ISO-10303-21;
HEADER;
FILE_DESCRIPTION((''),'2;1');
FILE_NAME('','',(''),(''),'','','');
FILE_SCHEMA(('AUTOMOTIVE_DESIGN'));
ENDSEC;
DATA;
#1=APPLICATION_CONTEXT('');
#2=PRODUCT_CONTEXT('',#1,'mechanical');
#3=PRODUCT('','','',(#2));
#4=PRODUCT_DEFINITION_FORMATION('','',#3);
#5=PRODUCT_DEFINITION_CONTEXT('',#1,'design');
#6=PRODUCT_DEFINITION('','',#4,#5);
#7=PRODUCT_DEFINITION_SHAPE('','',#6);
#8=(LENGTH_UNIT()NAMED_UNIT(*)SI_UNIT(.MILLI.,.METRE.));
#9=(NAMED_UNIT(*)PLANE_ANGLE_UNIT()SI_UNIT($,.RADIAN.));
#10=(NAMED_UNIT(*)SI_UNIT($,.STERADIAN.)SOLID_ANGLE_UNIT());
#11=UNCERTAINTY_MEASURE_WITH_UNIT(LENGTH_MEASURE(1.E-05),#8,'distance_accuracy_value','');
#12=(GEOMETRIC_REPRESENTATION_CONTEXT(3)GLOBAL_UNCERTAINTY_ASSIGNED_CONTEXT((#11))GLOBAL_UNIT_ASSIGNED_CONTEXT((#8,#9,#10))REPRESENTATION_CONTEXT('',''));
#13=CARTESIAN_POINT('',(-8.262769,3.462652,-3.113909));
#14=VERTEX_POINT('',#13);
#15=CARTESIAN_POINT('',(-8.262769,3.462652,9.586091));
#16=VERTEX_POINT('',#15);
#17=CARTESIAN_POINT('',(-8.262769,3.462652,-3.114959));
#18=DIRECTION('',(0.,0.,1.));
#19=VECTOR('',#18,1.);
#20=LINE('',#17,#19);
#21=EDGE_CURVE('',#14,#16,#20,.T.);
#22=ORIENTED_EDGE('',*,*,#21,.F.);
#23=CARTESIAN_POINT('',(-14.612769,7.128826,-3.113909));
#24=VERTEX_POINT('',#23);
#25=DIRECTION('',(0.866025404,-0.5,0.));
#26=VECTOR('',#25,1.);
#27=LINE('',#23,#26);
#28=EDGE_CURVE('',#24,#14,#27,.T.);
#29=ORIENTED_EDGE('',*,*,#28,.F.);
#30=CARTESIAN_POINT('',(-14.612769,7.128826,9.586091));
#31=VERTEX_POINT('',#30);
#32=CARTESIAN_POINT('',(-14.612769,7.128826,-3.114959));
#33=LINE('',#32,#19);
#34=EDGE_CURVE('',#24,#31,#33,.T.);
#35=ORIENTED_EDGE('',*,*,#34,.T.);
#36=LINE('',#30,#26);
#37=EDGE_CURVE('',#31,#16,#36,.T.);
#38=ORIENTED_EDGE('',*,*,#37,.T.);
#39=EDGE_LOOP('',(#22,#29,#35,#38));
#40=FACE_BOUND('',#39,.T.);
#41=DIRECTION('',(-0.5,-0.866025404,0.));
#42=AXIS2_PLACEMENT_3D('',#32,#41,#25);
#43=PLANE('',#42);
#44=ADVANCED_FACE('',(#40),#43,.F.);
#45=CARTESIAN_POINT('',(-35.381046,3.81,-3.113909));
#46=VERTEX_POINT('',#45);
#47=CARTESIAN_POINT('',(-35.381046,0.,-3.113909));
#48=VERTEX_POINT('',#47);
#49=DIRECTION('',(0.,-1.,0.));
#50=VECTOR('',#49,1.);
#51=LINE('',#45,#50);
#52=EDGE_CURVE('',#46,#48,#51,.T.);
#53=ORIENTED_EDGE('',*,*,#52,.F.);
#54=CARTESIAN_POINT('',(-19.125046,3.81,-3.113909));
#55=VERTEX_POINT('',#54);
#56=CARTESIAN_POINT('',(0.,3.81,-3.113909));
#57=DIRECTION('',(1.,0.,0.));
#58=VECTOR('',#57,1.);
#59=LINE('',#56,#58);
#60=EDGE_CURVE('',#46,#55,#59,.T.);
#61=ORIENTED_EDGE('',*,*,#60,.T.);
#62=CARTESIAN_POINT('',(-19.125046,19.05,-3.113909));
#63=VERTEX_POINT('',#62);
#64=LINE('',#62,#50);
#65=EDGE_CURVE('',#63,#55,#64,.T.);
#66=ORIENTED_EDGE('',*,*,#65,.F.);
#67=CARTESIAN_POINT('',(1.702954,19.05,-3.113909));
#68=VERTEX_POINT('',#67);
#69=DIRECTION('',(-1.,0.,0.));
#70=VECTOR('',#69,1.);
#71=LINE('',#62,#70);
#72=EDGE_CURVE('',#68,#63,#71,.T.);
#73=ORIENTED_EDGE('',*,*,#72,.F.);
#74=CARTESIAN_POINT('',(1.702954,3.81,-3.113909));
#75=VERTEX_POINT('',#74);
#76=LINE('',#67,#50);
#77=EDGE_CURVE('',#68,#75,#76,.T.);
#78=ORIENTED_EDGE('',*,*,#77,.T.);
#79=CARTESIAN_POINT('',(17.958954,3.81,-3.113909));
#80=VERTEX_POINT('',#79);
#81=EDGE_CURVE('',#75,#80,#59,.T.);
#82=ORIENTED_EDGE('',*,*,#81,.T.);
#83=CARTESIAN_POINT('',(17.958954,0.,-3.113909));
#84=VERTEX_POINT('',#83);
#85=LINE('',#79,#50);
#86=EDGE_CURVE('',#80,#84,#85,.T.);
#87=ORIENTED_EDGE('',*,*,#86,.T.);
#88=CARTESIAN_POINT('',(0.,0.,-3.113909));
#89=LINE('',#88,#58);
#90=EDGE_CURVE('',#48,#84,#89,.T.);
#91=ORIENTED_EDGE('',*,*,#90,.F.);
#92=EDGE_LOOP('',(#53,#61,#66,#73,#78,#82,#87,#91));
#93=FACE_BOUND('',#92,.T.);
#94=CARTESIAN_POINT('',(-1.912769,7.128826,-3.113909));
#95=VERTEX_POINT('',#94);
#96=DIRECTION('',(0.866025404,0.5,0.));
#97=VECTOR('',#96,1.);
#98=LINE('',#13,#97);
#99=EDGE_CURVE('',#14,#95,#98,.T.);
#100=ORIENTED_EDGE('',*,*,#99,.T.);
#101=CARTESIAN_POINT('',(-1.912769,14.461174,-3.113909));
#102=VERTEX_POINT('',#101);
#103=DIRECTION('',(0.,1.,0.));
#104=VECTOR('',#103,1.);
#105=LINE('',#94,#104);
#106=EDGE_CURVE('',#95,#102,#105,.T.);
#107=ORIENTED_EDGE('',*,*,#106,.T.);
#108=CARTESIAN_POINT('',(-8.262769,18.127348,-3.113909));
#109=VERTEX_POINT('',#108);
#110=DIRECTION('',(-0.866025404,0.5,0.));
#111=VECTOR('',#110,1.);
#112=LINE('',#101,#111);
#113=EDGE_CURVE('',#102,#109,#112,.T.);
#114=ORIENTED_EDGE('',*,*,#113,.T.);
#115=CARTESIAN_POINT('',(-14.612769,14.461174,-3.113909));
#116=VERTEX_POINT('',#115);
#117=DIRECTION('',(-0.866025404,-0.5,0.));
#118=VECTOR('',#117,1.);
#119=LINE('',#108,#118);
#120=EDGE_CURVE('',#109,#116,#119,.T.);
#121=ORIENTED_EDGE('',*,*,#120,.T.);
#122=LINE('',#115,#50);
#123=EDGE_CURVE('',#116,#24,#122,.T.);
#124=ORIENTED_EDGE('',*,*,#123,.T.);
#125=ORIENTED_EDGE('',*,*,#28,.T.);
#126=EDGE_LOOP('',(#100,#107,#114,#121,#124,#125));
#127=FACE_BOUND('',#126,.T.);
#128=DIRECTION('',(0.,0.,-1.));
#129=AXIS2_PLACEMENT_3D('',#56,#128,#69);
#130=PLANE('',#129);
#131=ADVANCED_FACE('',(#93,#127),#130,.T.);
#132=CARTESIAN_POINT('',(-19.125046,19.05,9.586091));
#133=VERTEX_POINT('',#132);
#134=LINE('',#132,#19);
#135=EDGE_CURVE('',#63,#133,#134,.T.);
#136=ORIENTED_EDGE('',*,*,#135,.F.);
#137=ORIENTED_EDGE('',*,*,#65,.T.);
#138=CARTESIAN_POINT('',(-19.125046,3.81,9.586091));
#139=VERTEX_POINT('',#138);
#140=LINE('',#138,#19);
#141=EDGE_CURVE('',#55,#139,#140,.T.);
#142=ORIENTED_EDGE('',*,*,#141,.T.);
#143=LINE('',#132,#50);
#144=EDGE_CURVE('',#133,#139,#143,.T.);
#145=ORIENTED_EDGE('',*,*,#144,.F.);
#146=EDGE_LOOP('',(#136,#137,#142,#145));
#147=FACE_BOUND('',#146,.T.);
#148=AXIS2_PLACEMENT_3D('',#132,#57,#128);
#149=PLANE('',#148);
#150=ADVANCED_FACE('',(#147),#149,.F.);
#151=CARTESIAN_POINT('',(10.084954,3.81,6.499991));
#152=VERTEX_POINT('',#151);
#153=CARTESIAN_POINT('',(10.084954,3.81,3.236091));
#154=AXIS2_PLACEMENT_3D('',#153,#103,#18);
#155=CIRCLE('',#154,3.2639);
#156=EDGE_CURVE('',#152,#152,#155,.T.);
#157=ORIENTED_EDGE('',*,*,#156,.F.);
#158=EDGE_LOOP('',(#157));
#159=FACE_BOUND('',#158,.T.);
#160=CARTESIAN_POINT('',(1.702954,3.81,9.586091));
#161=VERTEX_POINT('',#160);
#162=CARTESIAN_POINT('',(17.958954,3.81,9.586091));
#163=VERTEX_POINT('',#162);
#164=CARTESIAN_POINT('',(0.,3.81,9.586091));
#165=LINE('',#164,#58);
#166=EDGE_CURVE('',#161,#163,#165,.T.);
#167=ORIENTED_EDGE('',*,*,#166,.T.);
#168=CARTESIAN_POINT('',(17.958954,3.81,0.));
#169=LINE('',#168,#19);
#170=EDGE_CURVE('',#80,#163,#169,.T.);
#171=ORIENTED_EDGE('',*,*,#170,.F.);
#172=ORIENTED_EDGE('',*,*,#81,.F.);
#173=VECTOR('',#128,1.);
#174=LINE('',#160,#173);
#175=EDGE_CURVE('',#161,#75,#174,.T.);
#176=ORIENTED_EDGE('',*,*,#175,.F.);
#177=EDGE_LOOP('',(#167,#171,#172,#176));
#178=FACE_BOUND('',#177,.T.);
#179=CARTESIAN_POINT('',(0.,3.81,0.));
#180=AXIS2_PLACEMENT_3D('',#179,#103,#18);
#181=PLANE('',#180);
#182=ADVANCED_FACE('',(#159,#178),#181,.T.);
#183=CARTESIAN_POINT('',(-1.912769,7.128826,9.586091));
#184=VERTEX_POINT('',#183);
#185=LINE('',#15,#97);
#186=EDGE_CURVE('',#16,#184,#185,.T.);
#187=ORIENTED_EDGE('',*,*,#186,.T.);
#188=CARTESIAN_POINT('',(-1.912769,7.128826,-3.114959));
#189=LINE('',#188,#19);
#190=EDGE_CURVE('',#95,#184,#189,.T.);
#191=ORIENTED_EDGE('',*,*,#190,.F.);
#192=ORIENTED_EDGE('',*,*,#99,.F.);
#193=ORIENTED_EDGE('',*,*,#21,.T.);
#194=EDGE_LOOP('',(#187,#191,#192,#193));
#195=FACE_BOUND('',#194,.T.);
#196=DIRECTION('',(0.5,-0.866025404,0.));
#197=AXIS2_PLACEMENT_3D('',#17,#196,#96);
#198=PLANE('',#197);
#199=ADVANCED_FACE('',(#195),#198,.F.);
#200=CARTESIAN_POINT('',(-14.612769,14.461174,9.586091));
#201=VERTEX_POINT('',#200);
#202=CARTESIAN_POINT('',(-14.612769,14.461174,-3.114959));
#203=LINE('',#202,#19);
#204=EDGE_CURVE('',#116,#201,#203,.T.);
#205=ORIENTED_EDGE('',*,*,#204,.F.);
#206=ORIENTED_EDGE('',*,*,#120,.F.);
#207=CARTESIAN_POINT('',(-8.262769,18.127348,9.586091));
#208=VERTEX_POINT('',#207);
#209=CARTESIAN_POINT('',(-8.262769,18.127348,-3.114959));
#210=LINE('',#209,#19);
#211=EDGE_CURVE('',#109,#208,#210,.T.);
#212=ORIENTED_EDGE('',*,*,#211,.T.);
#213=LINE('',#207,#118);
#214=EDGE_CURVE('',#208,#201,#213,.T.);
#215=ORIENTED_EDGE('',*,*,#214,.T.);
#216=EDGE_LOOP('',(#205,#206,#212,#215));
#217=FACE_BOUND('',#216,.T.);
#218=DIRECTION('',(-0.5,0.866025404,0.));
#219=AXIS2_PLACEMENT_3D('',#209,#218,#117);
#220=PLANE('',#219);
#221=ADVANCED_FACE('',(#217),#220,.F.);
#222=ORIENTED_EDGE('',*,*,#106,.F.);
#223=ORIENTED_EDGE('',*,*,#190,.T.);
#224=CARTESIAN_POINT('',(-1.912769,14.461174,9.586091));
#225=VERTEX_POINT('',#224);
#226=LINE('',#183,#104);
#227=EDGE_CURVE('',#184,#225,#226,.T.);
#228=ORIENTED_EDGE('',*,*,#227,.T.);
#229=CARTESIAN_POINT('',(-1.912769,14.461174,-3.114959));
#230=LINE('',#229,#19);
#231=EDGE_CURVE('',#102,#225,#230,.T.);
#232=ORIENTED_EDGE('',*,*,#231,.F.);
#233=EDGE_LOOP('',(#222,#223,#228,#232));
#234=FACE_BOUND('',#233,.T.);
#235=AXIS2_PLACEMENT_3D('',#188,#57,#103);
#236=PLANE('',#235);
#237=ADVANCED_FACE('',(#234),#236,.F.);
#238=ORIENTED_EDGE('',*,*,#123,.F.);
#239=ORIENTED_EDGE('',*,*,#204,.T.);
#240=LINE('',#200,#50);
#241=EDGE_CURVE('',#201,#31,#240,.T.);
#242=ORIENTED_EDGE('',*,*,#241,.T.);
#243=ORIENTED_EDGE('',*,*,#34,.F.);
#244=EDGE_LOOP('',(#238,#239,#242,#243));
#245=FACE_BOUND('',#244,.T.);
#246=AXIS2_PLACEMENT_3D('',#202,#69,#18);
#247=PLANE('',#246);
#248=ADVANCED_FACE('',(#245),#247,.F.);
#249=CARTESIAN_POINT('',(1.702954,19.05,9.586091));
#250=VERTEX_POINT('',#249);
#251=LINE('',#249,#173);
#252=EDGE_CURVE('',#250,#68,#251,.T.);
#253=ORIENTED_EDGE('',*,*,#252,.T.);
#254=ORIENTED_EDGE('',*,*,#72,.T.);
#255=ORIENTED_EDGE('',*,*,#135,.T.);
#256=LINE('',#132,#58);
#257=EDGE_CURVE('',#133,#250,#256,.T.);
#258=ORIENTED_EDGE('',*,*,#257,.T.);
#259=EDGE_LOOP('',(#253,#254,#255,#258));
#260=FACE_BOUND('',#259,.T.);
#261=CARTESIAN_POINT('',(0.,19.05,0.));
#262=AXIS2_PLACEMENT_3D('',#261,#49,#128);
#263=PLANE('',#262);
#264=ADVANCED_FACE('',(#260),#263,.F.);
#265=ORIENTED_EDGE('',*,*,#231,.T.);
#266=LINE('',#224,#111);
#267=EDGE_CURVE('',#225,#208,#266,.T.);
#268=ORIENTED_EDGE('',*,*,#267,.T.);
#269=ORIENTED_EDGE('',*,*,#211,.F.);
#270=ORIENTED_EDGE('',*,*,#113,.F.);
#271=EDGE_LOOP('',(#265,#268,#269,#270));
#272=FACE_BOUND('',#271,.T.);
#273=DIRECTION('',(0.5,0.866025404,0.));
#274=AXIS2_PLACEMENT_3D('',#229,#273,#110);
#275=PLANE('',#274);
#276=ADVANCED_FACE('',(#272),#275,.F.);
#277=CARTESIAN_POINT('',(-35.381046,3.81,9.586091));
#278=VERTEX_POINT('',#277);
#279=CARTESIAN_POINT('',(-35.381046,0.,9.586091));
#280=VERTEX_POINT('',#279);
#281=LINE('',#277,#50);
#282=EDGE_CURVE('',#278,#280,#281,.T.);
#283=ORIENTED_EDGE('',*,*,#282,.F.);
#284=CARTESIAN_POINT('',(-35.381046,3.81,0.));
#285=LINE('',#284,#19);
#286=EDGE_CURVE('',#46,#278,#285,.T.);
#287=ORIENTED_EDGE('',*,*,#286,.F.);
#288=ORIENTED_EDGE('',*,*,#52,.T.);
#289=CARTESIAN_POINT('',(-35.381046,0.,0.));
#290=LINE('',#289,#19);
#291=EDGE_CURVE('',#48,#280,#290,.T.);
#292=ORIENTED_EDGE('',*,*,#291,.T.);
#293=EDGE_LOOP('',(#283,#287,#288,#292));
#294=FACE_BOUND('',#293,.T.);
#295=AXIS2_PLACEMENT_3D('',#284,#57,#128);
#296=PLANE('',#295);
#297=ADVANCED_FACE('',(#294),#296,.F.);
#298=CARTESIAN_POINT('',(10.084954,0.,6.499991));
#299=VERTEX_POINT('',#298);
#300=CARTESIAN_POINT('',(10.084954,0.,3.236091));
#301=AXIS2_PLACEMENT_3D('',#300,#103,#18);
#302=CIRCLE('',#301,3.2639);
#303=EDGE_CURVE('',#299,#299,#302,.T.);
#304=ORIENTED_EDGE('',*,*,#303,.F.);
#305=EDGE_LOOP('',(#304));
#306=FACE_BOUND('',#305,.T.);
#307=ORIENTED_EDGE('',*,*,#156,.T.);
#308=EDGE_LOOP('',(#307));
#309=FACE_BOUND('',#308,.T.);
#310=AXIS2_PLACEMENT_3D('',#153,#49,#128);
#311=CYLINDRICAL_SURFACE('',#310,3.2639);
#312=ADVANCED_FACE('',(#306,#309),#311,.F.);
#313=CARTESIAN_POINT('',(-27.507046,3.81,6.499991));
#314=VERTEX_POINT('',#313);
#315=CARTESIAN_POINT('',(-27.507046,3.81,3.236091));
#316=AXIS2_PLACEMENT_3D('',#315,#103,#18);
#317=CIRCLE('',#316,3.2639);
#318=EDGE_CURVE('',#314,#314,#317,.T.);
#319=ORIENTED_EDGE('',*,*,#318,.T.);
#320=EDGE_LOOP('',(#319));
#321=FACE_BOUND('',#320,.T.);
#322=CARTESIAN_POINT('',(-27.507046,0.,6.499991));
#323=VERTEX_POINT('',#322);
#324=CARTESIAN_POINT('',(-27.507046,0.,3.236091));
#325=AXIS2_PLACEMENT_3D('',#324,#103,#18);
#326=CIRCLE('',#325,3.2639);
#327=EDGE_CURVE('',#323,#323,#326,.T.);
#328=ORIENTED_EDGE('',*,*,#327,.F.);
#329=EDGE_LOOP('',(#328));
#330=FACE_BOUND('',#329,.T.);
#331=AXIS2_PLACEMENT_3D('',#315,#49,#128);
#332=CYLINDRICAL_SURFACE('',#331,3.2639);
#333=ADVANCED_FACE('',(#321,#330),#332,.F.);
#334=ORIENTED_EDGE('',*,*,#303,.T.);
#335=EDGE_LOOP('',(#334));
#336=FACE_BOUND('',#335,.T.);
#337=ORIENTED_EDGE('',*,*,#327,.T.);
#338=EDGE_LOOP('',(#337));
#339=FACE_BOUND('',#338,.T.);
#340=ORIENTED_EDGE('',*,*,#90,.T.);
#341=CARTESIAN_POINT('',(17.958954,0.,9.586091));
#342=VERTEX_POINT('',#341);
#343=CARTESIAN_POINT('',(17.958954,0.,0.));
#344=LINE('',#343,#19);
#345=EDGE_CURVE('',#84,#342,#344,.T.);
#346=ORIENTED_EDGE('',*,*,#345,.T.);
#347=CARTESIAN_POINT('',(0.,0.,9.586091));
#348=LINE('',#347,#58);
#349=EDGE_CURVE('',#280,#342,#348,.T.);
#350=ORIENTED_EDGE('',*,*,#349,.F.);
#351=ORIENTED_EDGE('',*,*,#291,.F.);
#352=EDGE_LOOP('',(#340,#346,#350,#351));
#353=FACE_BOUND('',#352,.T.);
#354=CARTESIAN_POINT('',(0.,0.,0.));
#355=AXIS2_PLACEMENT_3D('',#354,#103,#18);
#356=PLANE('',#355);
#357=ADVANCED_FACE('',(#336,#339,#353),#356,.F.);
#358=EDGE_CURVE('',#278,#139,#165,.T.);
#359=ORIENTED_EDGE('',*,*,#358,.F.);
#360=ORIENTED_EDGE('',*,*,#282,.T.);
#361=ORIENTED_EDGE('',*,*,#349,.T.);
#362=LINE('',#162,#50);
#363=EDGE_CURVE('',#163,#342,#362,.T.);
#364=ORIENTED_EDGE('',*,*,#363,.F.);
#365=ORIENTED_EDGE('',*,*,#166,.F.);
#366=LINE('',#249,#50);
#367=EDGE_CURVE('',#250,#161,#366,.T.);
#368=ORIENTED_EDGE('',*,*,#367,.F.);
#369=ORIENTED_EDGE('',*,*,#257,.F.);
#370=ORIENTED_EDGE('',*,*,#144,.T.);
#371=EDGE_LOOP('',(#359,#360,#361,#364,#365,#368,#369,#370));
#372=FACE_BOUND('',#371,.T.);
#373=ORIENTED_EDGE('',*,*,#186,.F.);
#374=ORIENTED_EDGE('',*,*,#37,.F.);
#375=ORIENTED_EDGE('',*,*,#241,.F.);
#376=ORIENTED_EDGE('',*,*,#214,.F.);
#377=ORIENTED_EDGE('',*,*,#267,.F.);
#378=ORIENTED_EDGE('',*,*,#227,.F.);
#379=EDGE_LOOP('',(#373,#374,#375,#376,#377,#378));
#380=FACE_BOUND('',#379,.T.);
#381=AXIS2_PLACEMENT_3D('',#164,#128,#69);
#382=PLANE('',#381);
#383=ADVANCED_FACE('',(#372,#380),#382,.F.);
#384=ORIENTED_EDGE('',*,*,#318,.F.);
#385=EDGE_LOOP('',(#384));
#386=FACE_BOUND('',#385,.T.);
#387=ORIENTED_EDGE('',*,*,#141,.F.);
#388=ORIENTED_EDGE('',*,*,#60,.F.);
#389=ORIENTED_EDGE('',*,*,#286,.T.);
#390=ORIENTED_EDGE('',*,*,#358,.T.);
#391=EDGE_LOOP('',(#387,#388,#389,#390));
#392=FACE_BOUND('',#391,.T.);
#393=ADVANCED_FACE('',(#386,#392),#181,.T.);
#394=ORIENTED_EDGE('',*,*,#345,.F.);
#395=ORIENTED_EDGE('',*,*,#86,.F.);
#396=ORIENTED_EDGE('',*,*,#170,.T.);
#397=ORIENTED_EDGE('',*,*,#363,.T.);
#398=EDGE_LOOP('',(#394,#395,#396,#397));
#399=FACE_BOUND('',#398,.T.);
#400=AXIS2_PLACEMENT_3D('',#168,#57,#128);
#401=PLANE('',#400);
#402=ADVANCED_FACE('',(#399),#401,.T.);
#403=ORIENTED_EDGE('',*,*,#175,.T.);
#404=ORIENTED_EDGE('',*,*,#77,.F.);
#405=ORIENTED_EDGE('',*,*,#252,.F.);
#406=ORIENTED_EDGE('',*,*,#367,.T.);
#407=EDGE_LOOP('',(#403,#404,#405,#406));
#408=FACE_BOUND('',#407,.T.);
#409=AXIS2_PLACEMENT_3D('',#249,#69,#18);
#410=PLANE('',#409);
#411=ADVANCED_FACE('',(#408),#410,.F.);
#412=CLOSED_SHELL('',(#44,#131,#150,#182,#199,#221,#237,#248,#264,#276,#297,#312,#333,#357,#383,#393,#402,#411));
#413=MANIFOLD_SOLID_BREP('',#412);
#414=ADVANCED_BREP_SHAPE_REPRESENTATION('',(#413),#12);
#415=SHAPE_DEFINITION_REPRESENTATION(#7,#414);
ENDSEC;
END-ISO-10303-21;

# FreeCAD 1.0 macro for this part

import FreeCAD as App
import Part
import Sketcher

V = App.Vector
Q = App.Units.Quantity


def add_polygon(sketch, points):
    """Adds a closed chain of lines whose ends are joined by coincident constraints."""
    first, n = sketch.GeometryCount, len(points)
    for a, b in zip(points, points[1:] + points[:1]):
        sketch.addGeometry(Part.LineSegment(App.Vector(*a, 0), App.Vector(*b, 0)), False)
    for i in range(n):
        sketch.addConstraint(Sketcher.Constraint("Coincident", first + i, 2, first + (i + 1) % n, 1))

doc = App.newDocument("Part")
body = doc.addObject("PartDesign::Body", "Body")

sketch1 = body.newObject("Sketcher::SketchObject", "Sketch")
sketch1.AttachmentSupport = (doc.getObject("XZ_Plane"), [""])
sketch1.MapMode = "FlatFace"
add_polygon(sketch1, [(-35.4, -3.1), (-35.4, 9.6), (18, 9.6), (18, -3.1)])
sketch1.addGeometry(Part.Circle(V(-27.5, 3.2, 0), V(0, 0, 1), 3.3), False)
sketch1.addGeometry(Part.Circle(V(10.1, 3.2, 0), V(0, 0, 1), 3.3), False)
sketch1.addConstraint([
    Sketcher.Constraint("Vertical", 0),
    Sketcher.Constraint("Horizontal", 1),
    Sketcher.Constraint("Vertical", 2),
    Sketcher.Constraint("Horizontal", 3),
    Sketcher.Constraint("Equal", 4, 5),
    Sketcher.Constraint("Horizontal", 4, 3, 5, 3),
    Sketcher.Constraint("Diameter", 4, Q("0.257 in")),
    Sketcher.Constraint("DistanceX", 1, 1, 1, 2, Q("2.1 in")),
    Sketcher.Constraint("DistanceY", 0, 1, 0, 2, Q("0.5 in")),
    Sketcher.Constraint("DistanceX", 4, 3, 5, 3, Q("1.48 in")),
    Sketcher.Constraint("DistanceX", 0, 2, 4, 3, Q("0.31 in")),
    Sketcher.Constraint("DistanceY", 4, 3, 0, 2, Q("0.25 in")),
    Sketcher.Constraint("DistanceY", -1, 1, 4, 3, Q("3.236091 mm")),
    Sketcher.Constraint("DistanceX", 4, 3, -1, 1, Q("27.507046 mm")),
])
pad1 = body.newObject("PartDesign::Pad", "Pad")
pad1.Profile = sketch1
pad1.Length = Q("0.15 in")
pad1.Reversed = True

sketch2 = body.newObject("Sketcher::SketchObject", "Sketch001")
sketch2.AttachmentSupport = (doc.getObject("XZ_Plane"), [""])
sketch2.MapMode = "FlatFace"
sketch2.AttachmentOffset = App.Placement(V(0, 0, -0.15 * 25.4), App.Rotation())
add_polygon(sketch2, [(-19, -3), (-19, 10), (2, 10), (2, -3)])
sketch2.addConstraint([
    Sketcher.Constraint("Vertical", 0),
    Sketcher.Constraint("Horizontal", 1),
    Sketcher.Constraint("Vertical", 2),
    Sketcher.Constraint("Horizontal", 3),
    Sketcher.Constraint("DistanceY", 0, 1, 0, 2, Q("0.5 in")),
    Sketcher.Constraint("DistanceX", 1, 1, 1, 2, Q("0.82 in")),
    Sketcher.Constraint("DistanceY", -1, 1, 0, 2, Q("9.586091 mm")),
    Sketcher.Constraint("DistanceX", 0, 2, -1, 1, Q("19.125046 mm")),
])
pad2 = body.newObject("PartDesign::Pad", "Pad001")
pad2.Profile = sketch2
pad2.Length = Q("0.6 in")
pad2.Reversed = True

sketch3 = body.newObject("Sketcher::SketchObject", "Sketch002")
sketch3.AttachmentSupport = (doc.getObject("XY_Plane"), [""])
sketch3.MapMode = "FlatFace"
sketch3.AttachmentOffset = App.Placement(V(0, 0, 9.586091), App.Rotation())
add_polygon(sketch3, [(-8, 18), (-15, 14), (-15, 7), (-8, 3), (-2, 7), (-2, 14)])
sketch3.addConstraint([
    Sketcher.Constraint("Vertical", 1),
    Sketcher.Constraint("Vertical", 4),
    Sketcher.Constraint("Parallel", 0, 3),
    Sketcher.Constraint("Parallel", 2, 5),
    Sketcher.Constraint("Horizontal", 1, 2, 3, 2),
    Sketcher.Constraint("Horizontal", 0, 2, 4, 2),
    Sketcher.Constraint("Vertical", 2, 2, 5, 2),
    Sketcher.Constraint("Angle", 0, Q("-150 deg")),
    Sketcher.Constraint("DistanceX", 1, 2, 3, 2, Q("0.5 in")),
    Sketcher.Constraint("DistanceY", 1, 2, 1, 1, Q("7.332348 mm")),
    Sketcher.Constraint("DistanceX", 0, 2, -1, 1, Q("14.612769 mm")),
    Sketcher.Constraint("DistanceY", -1, 1, 2, 2, Q("3.462652 mm")),
])
pocket1 = body.newObject("PartDesign::Pocket", "Pocket")
pocket1.Profile = sketch3
pocket1.Type = "UpToFirst"

doc.recompute()
